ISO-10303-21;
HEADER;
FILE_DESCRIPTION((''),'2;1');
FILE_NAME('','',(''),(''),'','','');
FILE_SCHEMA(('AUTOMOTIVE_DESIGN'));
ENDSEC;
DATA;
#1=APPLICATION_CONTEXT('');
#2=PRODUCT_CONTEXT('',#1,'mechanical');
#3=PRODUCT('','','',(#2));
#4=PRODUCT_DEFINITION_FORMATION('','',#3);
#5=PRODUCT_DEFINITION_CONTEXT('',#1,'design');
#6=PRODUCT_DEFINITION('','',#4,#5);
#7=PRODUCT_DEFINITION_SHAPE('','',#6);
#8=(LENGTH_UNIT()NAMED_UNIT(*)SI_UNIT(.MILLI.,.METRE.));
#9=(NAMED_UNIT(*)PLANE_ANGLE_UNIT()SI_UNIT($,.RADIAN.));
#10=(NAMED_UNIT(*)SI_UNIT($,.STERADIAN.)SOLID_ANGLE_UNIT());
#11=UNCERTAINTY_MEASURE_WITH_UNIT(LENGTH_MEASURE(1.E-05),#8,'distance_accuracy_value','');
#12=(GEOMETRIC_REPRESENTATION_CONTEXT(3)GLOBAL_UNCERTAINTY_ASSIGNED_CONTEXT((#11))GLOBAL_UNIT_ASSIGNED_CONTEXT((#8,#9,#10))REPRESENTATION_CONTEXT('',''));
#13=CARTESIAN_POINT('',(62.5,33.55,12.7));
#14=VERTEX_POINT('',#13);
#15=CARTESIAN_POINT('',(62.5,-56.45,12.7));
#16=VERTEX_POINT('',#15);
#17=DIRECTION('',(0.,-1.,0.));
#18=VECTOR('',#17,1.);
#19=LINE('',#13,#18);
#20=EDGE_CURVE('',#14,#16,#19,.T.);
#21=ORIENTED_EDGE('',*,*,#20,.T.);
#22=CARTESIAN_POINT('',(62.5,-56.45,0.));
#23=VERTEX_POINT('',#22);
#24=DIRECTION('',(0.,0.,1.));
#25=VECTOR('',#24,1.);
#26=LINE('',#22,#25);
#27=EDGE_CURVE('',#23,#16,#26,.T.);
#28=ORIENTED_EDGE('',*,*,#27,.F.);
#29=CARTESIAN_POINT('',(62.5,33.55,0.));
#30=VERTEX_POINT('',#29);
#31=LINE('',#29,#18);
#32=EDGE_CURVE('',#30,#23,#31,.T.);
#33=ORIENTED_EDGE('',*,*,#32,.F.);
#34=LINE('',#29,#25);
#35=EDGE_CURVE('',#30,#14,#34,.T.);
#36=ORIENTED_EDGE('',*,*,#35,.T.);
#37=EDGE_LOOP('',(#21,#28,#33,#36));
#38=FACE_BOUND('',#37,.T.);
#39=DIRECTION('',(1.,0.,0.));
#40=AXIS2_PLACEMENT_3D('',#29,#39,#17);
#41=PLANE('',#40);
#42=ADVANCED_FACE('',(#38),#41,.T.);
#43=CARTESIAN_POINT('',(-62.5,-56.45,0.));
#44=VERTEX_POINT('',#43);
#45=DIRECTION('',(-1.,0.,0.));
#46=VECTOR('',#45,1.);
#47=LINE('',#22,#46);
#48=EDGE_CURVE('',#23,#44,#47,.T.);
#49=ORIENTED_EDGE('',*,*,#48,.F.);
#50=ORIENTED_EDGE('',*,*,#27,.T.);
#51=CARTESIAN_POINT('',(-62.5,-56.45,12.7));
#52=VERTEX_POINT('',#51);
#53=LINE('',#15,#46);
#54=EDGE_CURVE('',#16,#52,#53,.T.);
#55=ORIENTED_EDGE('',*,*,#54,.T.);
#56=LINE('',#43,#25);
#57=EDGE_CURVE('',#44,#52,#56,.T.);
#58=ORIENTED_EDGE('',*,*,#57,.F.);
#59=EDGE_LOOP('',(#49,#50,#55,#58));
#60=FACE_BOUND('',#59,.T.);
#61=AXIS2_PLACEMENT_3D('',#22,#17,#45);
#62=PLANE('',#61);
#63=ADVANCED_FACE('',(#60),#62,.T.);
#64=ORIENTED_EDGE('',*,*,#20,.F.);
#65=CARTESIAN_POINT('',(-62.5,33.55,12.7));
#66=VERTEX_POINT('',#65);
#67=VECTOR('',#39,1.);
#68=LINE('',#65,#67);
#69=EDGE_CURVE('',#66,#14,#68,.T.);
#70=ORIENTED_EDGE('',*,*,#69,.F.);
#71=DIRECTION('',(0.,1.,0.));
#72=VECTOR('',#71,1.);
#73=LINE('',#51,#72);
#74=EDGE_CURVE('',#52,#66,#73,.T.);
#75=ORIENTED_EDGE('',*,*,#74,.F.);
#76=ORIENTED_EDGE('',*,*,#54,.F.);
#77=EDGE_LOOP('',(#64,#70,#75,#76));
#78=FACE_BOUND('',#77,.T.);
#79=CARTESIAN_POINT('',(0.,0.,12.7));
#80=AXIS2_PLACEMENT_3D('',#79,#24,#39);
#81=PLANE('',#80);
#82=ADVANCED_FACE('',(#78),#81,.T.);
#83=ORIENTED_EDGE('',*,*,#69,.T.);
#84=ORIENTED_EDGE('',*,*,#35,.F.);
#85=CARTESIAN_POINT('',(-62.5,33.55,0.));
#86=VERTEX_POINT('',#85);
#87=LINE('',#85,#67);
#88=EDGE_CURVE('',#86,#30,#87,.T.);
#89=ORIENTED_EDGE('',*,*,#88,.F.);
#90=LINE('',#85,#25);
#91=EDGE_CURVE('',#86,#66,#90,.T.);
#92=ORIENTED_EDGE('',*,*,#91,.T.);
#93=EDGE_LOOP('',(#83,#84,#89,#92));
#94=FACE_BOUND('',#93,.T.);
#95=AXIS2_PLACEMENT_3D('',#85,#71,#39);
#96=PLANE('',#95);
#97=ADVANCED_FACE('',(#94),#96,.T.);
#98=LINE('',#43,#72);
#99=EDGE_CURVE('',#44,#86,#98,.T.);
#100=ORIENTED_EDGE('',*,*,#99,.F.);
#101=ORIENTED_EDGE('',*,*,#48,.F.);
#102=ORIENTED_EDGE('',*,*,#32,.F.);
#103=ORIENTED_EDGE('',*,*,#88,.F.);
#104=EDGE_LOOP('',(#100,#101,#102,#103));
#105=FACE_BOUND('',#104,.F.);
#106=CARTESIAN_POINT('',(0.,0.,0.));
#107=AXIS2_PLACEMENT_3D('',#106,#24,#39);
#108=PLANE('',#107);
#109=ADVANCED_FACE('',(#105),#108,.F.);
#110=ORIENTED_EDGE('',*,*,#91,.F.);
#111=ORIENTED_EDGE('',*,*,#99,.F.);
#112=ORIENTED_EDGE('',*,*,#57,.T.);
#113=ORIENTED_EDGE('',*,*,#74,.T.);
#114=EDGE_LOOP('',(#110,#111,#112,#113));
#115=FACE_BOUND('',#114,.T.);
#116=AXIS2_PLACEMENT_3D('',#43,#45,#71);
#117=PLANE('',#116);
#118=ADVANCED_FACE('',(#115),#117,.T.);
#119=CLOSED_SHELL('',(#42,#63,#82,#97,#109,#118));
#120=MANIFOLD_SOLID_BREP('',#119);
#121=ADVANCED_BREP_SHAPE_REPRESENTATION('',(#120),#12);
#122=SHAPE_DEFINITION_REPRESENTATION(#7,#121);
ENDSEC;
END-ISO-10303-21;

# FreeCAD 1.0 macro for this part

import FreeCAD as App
import Part
import Sketcher

doc = App.newDocument("Part")
body = doc.addObject("PartDesign::Body", "Body")

# Sketch on XY plane
sketch1 = body.newObject("Sketcher::SketchObject", "Sketch")
sketch1.AttachmentSupport = (doc.getObject("XY_Plane"), [""])
sketch1.MapMode = "FlatFace"
sketch1.addGeometry([
    Part.LineSegment(App.Vector(-62, -56, 0), App.Vector(62, -56, 0)),
    Part.LineSegment(App.Vector(62, -56, 0), App.Vector(62, 34, 0)),
    Part.LineSegment(App.Vector(62, 34, 0), App.Vector(-62, 34, 0)),
    Part.LineSegment(App.Vector(-62, 34, 0), App.Vector(-62, -56, 0)),
], False)
sketch1.addConstraint([
    Sketcher.Constraint("Coincident", 0, 2, 1, 1),
    Sketcher.Constraint("Coincident", 1, 2, 2, 1),
    Sketcher.Constraint("Coincident", 2, 2, 3, 1),
    Sketcher.Constraint("Coincident", 3, 2, 0, 1),
    Sketcher.Constraint("Horizontal", 0),
    Sketcher.Constraint("Vertical", 1),
    Sketcher.Constraint("Horizontal", 2),
    Sketcher.Constraint("Vertical", 3),
    Sketcher.Constraint("DistanceX", 0, 1, 0, 2, 125.0),
    Sketcher.Constraint("DistanceY", 1, 1, 1, 2, 90.0),
    Sketcher.Constraint("DistanceX", -1, 1, 0, 2, 62.5),
    Sketcher.Constraint("DistanceY", 0, 2, -1, 1, 56.45),
])
pad1 = body.newObject("PartDesign::Pad", "Pad")
pad1.Profile = sketch1
pad1.Length = 12.7

doc.recompute()
